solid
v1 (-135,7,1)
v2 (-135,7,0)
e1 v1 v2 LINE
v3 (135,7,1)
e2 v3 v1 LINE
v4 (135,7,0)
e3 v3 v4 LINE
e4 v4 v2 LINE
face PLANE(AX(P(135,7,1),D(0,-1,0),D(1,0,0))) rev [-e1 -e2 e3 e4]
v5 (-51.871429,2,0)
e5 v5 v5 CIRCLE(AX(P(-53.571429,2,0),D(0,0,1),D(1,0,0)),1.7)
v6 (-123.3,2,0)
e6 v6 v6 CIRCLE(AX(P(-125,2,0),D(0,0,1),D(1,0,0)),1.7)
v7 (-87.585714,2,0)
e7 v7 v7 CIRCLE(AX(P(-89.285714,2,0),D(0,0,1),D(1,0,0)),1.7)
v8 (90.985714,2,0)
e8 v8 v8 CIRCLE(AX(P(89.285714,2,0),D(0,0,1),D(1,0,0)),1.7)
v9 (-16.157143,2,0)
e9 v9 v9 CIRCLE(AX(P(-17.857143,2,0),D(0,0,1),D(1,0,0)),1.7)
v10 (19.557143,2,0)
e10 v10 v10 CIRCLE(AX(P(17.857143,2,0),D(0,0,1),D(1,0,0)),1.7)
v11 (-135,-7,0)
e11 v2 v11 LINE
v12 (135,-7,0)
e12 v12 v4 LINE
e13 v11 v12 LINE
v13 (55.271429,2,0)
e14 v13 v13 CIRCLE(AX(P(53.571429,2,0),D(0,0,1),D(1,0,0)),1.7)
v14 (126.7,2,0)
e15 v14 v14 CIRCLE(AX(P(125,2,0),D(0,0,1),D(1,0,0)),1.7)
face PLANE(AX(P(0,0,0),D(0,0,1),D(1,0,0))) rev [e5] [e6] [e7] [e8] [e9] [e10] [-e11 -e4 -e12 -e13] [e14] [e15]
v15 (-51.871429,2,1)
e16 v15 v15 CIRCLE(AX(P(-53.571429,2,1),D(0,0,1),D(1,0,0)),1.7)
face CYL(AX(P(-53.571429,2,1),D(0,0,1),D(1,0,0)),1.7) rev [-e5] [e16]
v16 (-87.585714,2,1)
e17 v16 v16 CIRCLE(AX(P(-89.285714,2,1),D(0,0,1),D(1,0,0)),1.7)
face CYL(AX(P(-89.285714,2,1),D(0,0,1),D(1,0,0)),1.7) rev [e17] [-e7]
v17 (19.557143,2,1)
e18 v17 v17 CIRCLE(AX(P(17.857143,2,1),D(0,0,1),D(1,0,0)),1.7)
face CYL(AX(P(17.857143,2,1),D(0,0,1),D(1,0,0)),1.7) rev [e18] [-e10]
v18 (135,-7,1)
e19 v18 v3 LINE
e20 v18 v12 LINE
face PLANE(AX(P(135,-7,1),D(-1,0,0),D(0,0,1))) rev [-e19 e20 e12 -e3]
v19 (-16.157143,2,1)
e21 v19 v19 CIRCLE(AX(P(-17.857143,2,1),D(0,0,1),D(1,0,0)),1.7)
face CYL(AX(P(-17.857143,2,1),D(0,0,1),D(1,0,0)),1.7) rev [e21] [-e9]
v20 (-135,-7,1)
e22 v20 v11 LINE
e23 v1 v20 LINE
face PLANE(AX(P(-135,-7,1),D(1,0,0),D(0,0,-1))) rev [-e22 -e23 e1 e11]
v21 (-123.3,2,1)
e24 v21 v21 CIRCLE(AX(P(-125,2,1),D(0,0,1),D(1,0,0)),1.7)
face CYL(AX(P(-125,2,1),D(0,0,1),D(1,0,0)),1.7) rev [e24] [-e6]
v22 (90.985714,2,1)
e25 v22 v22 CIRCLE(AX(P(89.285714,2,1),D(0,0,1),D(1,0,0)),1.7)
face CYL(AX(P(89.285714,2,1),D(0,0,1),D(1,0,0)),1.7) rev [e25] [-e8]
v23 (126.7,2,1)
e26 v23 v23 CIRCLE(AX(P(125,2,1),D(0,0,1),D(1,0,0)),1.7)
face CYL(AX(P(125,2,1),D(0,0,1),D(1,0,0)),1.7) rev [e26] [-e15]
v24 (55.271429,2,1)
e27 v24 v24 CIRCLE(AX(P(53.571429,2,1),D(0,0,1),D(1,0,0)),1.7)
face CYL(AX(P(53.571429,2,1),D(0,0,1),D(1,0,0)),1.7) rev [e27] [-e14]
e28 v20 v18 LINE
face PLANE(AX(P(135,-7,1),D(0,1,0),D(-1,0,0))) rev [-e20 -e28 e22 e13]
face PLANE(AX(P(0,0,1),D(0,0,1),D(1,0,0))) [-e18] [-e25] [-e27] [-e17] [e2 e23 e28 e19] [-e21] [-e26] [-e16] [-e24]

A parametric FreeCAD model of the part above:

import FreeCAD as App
import Part
import Sketcher

V = App.Vector


def add_polygon(sketch, points):
    """Adds a closed chain of lines whose ends are joined by coincident constraints."""
    first, n = sketch.GeometryCount, len(points)
    for a, b in zip(points, points[1:] + points[:1]):
        sketch.addGeometry(Part.LineSegment(App.Vector(*a, 0), App.Vector(*b, 0)), False)
    for i in range(n):
        sketch.addConstraint(Sketcher.Constraint("Coincident", first + i, 2, first + (i + 1) % n, 1))

doc = App.newDocument("Part")
params = doc.addObject("Spreadsheet::Sheet", "Params")
for row, (alias, value) in enumerate([
    ("sketch1_width", "270 mm"),
    ("sketch1_height", "14 mm"),
    ("pad1_length", "1 mm"),
    ("sketch2_diameter", "3.4 mm"),
    ("hole_diameter", "3.4 mm"),
    ("linearpattern_pitch", "35.714286 mm"),
], start=1):
    params.set(f"A{row}", alias)
    params.set(f"B{row}", "=" + value)
    params.setAlias(f"B{row}", alias)

body = doc.addObject("PartDesign::Body", "Body")

# Sketch on XY plane
sketch1 = doc.addObject("Sketcher::SketchObject", "Sketch")
body.addObject(sketch1)
sketch1.AttachmentSupport = (doc.XY_Plane, [""])
sketch1.MapMode = "FlatFace"
add_polygon(sketch1, [(-135, 7), (-135, -7), (135, -7), (135, 7)])  # lines 0-3
sketch1.addConstraint([
    Sketcher.Constraint("Vertical", 0),
    Sketcher.Constraint("Horizontal", 1),
    Sketcher.Constraint("Vertical", 2),
    Sketcher.Constraint("Horizontal", 3),
    Sketcher.Constraint("Symmetric", 0, 2, 2, 2, -1, 1),
    Sketcher.Constraint("DistanceX", 1, 1, 1, 2, 270.0),
    Sketcher.Constraint("DistanceY", 0, 2, 0, 1, 14.0),
])
sketch1.setExpression("Constraints[9]", "Params.sketch1_width")
sketch1.setExpression("Constraints[10]", "Params.sketch1_height")
pad1 = doc.addObject("PartDesign::Pad", "Pad")
body.addObject(pad1)
pad1.Profile = sketch1
pad1.setExpression("Length", "Params.pad1_length")

# Sketch on XY plane
sketch2 = doc.addObject("Sketcher::SketchObject", "Sketch001")
body.addObject(sketch2)
sketch2.AttachmentSupport = (doc.XY_Plane, [""])
sketch2.MapMode = "FlatFace"
sketch2.AttachmentOffset = App.Placement(V(0, 0, 1), App.Rotation())
sketch2.addGeometry(Part.Circle(V(125, 2, 0), V(0, 0, 1), 1.7), False)
sketch2.addConstraint([
    Sketcher.Constraint("Diameter", 0, 3.4),
    Sketcher.Constraint("DistanceX", -1, 1, 0, 3, 125.0),
    Sketcher.Constraint("DistanceY", -1, 1, 0, 3, 2.0),
])
sketch2.setExpression("Constraints[0]", "Params.sketch2_diameter")
doc.recompute()
hole = doc.addObject("PartDesign::Hole", "Hole")
body.addObject(hole)
hole.Profile = sketch2
hole.ThreadType = "None"
hole.setExpression("Diameter", "Params.hole_diameter")
hole.DepthType = "ThroughAll"
doc.recompute()

linearpattern = doc.addObject("PartDesign::LinearPattern", "LinearPattern")
body.addObject(linearpattern)
linearpattern.Originals = [hole]
linearpattern.Direction = (doc.X_Axis, [""])
linearpattern.Mode = "offset"
linearpattern.setExpression("Offset", "Params.linearpattern_pitch")
linearpattern.Occurrences = 8
linearpattern.Reversed = True
body.Tip = linearpattern

doc.recompute()
